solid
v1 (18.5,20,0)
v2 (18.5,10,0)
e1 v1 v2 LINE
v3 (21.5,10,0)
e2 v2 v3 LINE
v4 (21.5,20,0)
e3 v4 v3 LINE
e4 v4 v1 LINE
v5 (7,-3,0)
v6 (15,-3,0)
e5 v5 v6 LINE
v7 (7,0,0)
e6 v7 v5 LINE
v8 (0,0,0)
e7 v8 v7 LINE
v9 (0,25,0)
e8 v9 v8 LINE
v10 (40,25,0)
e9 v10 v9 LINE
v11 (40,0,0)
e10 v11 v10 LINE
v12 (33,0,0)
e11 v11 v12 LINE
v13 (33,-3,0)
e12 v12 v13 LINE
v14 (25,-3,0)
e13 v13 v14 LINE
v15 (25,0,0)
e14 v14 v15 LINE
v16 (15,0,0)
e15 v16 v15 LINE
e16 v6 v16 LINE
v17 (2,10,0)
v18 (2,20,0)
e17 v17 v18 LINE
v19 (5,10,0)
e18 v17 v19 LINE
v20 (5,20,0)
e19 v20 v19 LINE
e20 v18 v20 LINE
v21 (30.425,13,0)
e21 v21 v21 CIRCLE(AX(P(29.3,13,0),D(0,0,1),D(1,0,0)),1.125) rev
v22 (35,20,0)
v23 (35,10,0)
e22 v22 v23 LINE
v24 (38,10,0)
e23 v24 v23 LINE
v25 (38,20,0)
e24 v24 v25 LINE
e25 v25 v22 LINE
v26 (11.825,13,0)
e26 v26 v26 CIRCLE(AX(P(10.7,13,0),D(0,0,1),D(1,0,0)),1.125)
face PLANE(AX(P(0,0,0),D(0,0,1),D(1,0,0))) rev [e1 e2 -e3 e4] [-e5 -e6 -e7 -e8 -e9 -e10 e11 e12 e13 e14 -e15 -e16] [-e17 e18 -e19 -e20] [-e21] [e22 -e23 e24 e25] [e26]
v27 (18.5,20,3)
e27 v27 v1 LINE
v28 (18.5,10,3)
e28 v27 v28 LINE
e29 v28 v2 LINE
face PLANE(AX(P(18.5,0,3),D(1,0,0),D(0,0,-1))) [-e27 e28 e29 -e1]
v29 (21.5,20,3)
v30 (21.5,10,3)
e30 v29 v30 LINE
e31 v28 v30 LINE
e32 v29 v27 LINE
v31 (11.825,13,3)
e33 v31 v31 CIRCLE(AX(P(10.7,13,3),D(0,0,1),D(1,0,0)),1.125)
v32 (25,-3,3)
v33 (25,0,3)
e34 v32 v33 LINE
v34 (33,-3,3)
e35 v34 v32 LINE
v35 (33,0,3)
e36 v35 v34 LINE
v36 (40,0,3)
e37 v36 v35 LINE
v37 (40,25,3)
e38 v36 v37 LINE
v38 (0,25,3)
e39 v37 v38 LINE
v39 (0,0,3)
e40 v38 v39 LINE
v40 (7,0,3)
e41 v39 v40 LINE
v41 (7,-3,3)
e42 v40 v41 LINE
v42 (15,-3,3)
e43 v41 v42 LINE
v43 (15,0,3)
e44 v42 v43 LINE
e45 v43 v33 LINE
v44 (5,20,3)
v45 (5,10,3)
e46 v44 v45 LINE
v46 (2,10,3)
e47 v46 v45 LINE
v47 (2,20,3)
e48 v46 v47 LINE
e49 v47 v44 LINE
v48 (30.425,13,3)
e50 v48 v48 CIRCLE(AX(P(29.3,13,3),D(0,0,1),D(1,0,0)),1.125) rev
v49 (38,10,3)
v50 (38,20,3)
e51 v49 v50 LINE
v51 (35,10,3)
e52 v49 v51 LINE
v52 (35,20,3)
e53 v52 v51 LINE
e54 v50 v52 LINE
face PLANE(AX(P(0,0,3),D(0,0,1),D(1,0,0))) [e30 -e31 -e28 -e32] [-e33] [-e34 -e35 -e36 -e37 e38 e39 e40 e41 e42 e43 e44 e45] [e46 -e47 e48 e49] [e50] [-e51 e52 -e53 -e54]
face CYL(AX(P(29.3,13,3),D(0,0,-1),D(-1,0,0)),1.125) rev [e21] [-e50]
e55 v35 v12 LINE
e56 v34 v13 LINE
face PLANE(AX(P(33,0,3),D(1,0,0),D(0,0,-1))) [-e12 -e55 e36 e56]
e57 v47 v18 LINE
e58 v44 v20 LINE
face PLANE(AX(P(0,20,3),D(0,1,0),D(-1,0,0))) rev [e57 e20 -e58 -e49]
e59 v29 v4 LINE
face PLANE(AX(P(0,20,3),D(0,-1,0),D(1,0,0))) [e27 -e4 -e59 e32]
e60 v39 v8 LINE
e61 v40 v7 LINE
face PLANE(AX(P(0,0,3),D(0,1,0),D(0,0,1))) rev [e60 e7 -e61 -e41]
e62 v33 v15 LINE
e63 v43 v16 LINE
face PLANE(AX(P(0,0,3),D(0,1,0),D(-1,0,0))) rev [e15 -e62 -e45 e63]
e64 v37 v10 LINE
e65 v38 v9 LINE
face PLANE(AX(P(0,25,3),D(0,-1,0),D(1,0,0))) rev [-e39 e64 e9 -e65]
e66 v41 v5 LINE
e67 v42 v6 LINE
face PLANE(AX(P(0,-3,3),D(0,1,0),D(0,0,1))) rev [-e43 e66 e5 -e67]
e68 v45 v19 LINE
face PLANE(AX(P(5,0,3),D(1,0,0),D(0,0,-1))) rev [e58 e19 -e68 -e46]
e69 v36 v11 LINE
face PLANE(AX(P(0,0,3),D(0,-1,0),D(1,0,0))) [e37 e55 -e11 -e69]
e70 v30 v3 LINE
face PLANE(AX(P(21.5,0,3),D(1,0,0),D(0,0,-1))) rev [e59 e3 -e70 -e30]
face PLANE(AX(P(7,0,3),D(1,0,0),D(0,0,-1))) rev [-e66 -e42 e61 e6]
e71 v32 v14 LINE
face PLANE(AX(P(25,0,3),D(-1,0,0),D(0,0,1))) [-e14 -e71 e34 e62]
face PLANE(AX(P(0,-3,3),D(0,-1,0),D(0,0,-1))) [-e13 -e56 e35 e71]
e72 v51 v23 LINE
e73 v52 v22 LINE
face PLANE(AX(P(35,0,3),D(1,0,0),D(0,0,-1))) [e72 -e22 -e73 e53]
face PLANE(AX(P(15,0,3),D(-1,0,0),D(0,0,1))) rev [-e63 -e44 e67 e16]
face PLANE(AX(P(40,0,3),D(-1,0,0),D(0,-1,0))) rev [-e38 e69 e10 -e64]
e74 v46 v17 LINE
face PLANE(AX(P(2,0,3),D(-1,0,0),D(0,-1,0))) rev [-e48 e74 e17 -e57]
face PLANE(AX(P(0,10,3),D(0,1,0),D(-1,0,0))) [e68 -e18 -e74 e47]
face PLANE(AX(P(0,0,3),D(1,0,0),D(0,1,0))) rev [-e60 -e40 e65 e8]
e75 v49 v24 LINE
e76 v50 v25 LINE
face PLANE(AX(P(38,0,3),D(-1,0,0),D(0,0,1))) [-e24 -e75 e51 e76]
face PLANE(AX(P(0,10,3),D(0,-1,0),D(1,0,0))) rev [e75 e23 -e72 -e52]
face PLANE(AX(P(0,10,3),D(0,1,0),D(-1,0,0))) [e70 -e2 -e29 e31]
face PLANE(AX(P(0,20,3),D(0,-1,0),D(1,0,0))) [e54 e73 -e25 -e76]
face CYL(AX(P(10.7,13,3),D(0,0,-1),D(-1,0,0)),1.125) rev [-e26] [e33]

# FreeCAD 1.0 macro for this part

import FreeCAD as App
import Part
import Sketcher

V = App.Vector


def add_polygon(sketch, points):
    """Adds a closed chain of lines whose ends are joined by coincident constraints."""
    first, n = sketch.GeometryCount, len(points)
    for a, b in zip(points, points[1:] + points[:1]):
        sketch.addGeometry(Part.LineSegment(App.Vector(*a, 0), App.Vector(*b, 0)), False)
    for i in range(n):
        sketch.addConstraint(Sketcher.Constraint("Coincident", first + i, 2, first + (i + 1) % n, 1))

doc = App.newDocument("Part")
params = doc.addObject("Spreadsheet::Sheet", "Params")
for row, (alias, value) in enumerate([
    ("sketch1_diameter", "2.25 mm"),
    ("sketch1_width", "40 mm"),
    ("sketch1_width2", "7 mm"),
    ("sketch1_width3", "8 mm"),
    ("sketch1_width4", "3 mm"),
    ("pad1_length", "3 mm"),
], start=1):
    params.set(f"A{row}", alias)
    params.set(f"B{row}", "=" + value)
    params.setAlias(f"B{row}", alias)

body = doc.addObject("PartDesign::Body", "Body")

# Sketch on XY plane
sketch1 = doc.addObject("Sketcher::SketchObject", "Sketch")
body.addObject(sketch1)
sketch1.AttachmentSupport = (doc.XY_Plane, [""])
sketch1.MapMode = "FlatFace"
add_polygon(sketch1, [(40, 0), (40, 25), (0, 25), (0, 0), (7, 0), (7, -3), (15, -3), (15, 0), (25, 0), (25, -3), (33, -3), (33, 0)])  # lines 0-11
sketch1.addGeometry(Part.Circle(V(10.7, 13, 0), V(0, 0, 1), 1.1), False)  # 12
sketch1.addGeometry(Part.Circle(V(29.3, 13, 0), V(0, 0, 1), 1.1), False)  # 13
add_polygon(sketch1, [(5, 10), (2, 10), (2, 20), (5, 20)])  # lines 14-17
add_polygon(sketch1, [(21.5, 10), (18.5, 10), (18.5, 20), (21.5, 20)])  # lines 18-21
add_polygon(sketch1, [(38, 10), (35, 10), (35, 20), (38, 20)])  # lines 22-25
sketch1.addConstraint(Sketcher.Constraint("Vertical", 0))
sketch1.addConstraint(Sketcher.Constraint("Horizontal", 1))
sketch1.addConstraint(Sketcher.Constraint("Vertical", 2))
sketch1.addConstraint(Sketcher.Constraint("Horizontal", 3))
sketch1.addConstraint(Sketcher.Constraint("Vertical", 4))
sketch1.addConstraint(Sketcher.Constraint("Horizontal", 5))
sketch1.addConstraint(Sketcher.Constraint("Vertical", 6))
sketch1.addConstraint(Sketcher.Constraint("Horizontal", 7))
sketch1.addConstraint(Sketcher.Constraint("Vertical", 8))
sketch1.addConstraint(Sketcher.Constraint("Horizontal", 9))
sketch1.addConstraint(Sketcher.Constraint("Vertical", 10))
sketch1.addConstraint(Sketcher.Constraint("Horizontal", 11))
sketch1.addConstraint(Sketcher.Constraint("Horizontal", 14))
sketch1.addConstraint(Sketcher.Constraint("Vertical", 15))
sketch1.addConstraint(Sketcher.Constraint("Horizontal", 16))
sketch1.addConstraint(Sketcher.Constraint("Vertical", 17))
sketch1.addConstraint(Sketcher.Constraint("Horizontal", 18))
sketch1.addConstraint(Sketcher.Constraint("Vertical", 19))
sketch1.addConstraint(Sketcher.Constraint("Horizontal", 20))
sketch1.addConstraint(Sketcher.Constraint("Vertical", 21))
sketch1.addConstraint(Sketcher.Constraint("Horizontal", 22))
sketch1.addConstraint(Sketcher.Constraint("Vertical", 23))
sketch1.addConstraint(Sketcher.Constraint("Horizontal", 24))
sketch1.addConstraint(Sketcher.Constraint("Vertical", 25))
sketch1.addConstraint(Sketcher.Constraint("Coincident", 2, 2, -1, 1))
sketch1.addConstraint(Sketcher.Constraint("Equal", 12, 13))
sketch1.addConstraint(Sketcher.Constraint("PointOnObject", 6, 2, -1))
sketch1.addConstraint(Sketcher.Constraint("PointOnObject", 10, 2, -1))
sketch1.addConstraint(Sketcher.Constraint("Horizontal", 12, 3, 13, 3))
sketch1.addConstraint(Sketcher.Constraint("Horizontal", 5, 2, 8, 2))
sketch1.addConstraint(Sketcher.Constraint("Horizontal", 17, 2, 18, 2))
sketch1.addConstraint(Sketcher.Constraint("Horizontal", 16, 2, 19, 2))
sketch1.addConstraint(Sketcher.Constraint("Horizontal", 21, 2, 22, 2))
sketch1.addConstraint(Sketcher.Constraint("Horizontal", 20, 2, 23, 2))
sketch1.addConstraint(Sketcher.Constraint("Equal", 5, 9))
sketch1.addConstraint(Sketcher.Constraint("Equal", 3, 11))
sketch1.addConstraint(Sketcher.Constraint("Equal", 16, 18))
sketch1.addConstraint(Sketcher.Constraint("Equal", 20, 22))
sketch1.addConstraint(Sketcher.Constraint("Equal", 24, 4))
sketch1.addConstraint(Sketcher.Constraint("Equal", 7, 15))
sketch1.addConstraint(Sketcher.Constraint("Diameter", 12, 2.25))
sketch1.addConstraint(Sketcher.Constraint("DistanceX", 1, 2, 1, 1, 40.0))
sketch1.addConstraint(Sketcher.Constraint("DistanceX", 3, 1, 3, 2, 7.0))
sketch1.addConstraint(Sketcher.Constraint("DistanceX", 5, 1, 5, 2, 8.0))
sketch1.addConstraint(Sketcher.Constraint("DistanceX", 14, 2, 14, 1, 3.0))
sketch1.addConstraint(Sketcher.Constraint("DistanceY", 0, 1, 0, 2, 25.0))
sketch1.addConstraint(Sketcher.Constraint("DistanceY", -1, 1, 12, 3, 13.0))
sketch1.addConstraint(Sketcher.Constraint("DistanceX", -1, 1, 14, 2, 2.0))
sketch1.addConstraint(Sketcher.Constraint("DistanceY", -1, 1, 14, 2, 10.0))
sketch1.addConstraint(Sketcher.Constraint("DistanceX", -1, 1, 22, 2, 35.0))
sketch1.addConstraint(Sketcher.Constraint("DistanceX", -1, 1, 12, 3, 10.7))
sketch1.addConstraint(Sketcher.Constraint("DistanceX", -1, 1, 13, 3, 29.3))
sketch1.addConstraint(Sketcher.Constraint("DistanceX", -1, 1, 18, 2, 18.5))
sketch1.setExpression("Constraints[64]", "Params.sketch1_diameter")
sketch1.setExpression("Constraints[65]", "Params.sketch1_width")
sketch1.setExpression("Constraints[66]", "Params.sketch1_width2")
sketch1.setExpression("Constraints[67]", "Params.sketch1_width3")
sketch1.setExpression("Constraints[68]", "Params.sketch1_width4")
pad1 = doc.addObject("PartDesign::Pad", "Pad")
body.addObject(pad1)
pad1.Profile = sketch1
pad1.setExpression("Length", "Params.pad1_length")

doc.recompute()
